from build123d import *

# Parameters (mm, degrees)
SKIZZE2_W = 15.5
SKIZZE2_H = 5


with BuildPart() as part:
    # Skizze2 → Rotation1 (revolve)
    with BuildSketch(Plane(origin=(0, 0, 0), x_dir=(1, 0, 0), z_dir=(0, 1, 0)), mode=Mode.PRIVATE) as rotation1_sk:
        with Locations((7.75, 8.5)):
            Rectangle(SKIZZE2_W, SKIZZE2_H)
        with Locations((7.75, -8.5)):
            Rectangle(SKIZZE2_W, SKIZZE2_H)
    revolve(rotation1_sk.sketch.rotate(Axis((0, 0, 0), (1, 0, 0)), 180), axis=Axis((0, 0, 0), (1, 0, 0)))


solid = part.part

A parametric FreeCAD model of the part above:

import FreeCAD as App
import Part
import Sketcher
from FreeCAD import Vector


def add_polygon(sketch, points):
    """Adds a closed chain of lines whose ends are joined by coincident constraints."""
    first, n = sketch.GeometryCount, len(points)
    for a, b in zip(points, points[1:] + points[:1]):
        sketch.addGeometry(Part.LineSegment(App.Vector(*a, 0), App.Vector(*b, 0)), False)
    for i in range(n):
        sketch.addConstraint(Sketcher.Constraint("Coincident", first + i, 2, first + (i + 1) % n, 1))

doc = App.newDocument("Part")
body = doc.addObject("PartDesign::Body", "Body")

sketch1 = doc.addObject("Sketcher::SketchObject", "Sketch")
body.addObject(sketch1)
sketch1.AttachmentSupport = (doc.XZ_Plane, [""])
sketch1.MapMode = "FlatFace"
add_polygon(sketch1, [(0, -11), (0, -6), (16, -6), (16, -11)])
add_polygon(sketch1, [(0, 6), (0, 11), (16, 11), (16, 6)])
sketch1.addConstraint([
    Sketcher.Constraint("Vertical", 0),
    Sketcher.Constraint("Horizontal", 1),
    Sketcher.Constraint("Vertical", 2),
    Sketcher.Constraint("Horizontal", 3),
    Sketcher.Constraint("Vertical", 4),
    Sketcher.Constraint("Horizontal", 5),
    Sketcher.Constraint("Vertical", 6),
    Sketcher.Constraint("Horizontal", 7),
    Sketcher.Constraint("Symmetric", 3, 2, 4, 2, -1, 1),
    Sketcher.Constraint("Symmetric", 1, 2, 6, 2, -1),
    Sketcher.Constraint("PointOnObject", 0, 2, -2),
    Sketcher.Constraint("DistanceY", 0, 1, 0, 2, 5.0),
    Sketcher.Constraint("DistanceX", 1, 1, 1, 2, 15.5),
    Sketcher.Constraint("DistanceY", 0, 2, -1, 1, 6.0),
])
revolution = doc.addObject("PartDesign::Revolution", "Revolution")
body.addObject(revolution)
revolution.Profile = sketch1
revolution.ReferenceAxis = (sketch1, ["H_Axis"])
revolution.Angle = 360

doc.recompute()
